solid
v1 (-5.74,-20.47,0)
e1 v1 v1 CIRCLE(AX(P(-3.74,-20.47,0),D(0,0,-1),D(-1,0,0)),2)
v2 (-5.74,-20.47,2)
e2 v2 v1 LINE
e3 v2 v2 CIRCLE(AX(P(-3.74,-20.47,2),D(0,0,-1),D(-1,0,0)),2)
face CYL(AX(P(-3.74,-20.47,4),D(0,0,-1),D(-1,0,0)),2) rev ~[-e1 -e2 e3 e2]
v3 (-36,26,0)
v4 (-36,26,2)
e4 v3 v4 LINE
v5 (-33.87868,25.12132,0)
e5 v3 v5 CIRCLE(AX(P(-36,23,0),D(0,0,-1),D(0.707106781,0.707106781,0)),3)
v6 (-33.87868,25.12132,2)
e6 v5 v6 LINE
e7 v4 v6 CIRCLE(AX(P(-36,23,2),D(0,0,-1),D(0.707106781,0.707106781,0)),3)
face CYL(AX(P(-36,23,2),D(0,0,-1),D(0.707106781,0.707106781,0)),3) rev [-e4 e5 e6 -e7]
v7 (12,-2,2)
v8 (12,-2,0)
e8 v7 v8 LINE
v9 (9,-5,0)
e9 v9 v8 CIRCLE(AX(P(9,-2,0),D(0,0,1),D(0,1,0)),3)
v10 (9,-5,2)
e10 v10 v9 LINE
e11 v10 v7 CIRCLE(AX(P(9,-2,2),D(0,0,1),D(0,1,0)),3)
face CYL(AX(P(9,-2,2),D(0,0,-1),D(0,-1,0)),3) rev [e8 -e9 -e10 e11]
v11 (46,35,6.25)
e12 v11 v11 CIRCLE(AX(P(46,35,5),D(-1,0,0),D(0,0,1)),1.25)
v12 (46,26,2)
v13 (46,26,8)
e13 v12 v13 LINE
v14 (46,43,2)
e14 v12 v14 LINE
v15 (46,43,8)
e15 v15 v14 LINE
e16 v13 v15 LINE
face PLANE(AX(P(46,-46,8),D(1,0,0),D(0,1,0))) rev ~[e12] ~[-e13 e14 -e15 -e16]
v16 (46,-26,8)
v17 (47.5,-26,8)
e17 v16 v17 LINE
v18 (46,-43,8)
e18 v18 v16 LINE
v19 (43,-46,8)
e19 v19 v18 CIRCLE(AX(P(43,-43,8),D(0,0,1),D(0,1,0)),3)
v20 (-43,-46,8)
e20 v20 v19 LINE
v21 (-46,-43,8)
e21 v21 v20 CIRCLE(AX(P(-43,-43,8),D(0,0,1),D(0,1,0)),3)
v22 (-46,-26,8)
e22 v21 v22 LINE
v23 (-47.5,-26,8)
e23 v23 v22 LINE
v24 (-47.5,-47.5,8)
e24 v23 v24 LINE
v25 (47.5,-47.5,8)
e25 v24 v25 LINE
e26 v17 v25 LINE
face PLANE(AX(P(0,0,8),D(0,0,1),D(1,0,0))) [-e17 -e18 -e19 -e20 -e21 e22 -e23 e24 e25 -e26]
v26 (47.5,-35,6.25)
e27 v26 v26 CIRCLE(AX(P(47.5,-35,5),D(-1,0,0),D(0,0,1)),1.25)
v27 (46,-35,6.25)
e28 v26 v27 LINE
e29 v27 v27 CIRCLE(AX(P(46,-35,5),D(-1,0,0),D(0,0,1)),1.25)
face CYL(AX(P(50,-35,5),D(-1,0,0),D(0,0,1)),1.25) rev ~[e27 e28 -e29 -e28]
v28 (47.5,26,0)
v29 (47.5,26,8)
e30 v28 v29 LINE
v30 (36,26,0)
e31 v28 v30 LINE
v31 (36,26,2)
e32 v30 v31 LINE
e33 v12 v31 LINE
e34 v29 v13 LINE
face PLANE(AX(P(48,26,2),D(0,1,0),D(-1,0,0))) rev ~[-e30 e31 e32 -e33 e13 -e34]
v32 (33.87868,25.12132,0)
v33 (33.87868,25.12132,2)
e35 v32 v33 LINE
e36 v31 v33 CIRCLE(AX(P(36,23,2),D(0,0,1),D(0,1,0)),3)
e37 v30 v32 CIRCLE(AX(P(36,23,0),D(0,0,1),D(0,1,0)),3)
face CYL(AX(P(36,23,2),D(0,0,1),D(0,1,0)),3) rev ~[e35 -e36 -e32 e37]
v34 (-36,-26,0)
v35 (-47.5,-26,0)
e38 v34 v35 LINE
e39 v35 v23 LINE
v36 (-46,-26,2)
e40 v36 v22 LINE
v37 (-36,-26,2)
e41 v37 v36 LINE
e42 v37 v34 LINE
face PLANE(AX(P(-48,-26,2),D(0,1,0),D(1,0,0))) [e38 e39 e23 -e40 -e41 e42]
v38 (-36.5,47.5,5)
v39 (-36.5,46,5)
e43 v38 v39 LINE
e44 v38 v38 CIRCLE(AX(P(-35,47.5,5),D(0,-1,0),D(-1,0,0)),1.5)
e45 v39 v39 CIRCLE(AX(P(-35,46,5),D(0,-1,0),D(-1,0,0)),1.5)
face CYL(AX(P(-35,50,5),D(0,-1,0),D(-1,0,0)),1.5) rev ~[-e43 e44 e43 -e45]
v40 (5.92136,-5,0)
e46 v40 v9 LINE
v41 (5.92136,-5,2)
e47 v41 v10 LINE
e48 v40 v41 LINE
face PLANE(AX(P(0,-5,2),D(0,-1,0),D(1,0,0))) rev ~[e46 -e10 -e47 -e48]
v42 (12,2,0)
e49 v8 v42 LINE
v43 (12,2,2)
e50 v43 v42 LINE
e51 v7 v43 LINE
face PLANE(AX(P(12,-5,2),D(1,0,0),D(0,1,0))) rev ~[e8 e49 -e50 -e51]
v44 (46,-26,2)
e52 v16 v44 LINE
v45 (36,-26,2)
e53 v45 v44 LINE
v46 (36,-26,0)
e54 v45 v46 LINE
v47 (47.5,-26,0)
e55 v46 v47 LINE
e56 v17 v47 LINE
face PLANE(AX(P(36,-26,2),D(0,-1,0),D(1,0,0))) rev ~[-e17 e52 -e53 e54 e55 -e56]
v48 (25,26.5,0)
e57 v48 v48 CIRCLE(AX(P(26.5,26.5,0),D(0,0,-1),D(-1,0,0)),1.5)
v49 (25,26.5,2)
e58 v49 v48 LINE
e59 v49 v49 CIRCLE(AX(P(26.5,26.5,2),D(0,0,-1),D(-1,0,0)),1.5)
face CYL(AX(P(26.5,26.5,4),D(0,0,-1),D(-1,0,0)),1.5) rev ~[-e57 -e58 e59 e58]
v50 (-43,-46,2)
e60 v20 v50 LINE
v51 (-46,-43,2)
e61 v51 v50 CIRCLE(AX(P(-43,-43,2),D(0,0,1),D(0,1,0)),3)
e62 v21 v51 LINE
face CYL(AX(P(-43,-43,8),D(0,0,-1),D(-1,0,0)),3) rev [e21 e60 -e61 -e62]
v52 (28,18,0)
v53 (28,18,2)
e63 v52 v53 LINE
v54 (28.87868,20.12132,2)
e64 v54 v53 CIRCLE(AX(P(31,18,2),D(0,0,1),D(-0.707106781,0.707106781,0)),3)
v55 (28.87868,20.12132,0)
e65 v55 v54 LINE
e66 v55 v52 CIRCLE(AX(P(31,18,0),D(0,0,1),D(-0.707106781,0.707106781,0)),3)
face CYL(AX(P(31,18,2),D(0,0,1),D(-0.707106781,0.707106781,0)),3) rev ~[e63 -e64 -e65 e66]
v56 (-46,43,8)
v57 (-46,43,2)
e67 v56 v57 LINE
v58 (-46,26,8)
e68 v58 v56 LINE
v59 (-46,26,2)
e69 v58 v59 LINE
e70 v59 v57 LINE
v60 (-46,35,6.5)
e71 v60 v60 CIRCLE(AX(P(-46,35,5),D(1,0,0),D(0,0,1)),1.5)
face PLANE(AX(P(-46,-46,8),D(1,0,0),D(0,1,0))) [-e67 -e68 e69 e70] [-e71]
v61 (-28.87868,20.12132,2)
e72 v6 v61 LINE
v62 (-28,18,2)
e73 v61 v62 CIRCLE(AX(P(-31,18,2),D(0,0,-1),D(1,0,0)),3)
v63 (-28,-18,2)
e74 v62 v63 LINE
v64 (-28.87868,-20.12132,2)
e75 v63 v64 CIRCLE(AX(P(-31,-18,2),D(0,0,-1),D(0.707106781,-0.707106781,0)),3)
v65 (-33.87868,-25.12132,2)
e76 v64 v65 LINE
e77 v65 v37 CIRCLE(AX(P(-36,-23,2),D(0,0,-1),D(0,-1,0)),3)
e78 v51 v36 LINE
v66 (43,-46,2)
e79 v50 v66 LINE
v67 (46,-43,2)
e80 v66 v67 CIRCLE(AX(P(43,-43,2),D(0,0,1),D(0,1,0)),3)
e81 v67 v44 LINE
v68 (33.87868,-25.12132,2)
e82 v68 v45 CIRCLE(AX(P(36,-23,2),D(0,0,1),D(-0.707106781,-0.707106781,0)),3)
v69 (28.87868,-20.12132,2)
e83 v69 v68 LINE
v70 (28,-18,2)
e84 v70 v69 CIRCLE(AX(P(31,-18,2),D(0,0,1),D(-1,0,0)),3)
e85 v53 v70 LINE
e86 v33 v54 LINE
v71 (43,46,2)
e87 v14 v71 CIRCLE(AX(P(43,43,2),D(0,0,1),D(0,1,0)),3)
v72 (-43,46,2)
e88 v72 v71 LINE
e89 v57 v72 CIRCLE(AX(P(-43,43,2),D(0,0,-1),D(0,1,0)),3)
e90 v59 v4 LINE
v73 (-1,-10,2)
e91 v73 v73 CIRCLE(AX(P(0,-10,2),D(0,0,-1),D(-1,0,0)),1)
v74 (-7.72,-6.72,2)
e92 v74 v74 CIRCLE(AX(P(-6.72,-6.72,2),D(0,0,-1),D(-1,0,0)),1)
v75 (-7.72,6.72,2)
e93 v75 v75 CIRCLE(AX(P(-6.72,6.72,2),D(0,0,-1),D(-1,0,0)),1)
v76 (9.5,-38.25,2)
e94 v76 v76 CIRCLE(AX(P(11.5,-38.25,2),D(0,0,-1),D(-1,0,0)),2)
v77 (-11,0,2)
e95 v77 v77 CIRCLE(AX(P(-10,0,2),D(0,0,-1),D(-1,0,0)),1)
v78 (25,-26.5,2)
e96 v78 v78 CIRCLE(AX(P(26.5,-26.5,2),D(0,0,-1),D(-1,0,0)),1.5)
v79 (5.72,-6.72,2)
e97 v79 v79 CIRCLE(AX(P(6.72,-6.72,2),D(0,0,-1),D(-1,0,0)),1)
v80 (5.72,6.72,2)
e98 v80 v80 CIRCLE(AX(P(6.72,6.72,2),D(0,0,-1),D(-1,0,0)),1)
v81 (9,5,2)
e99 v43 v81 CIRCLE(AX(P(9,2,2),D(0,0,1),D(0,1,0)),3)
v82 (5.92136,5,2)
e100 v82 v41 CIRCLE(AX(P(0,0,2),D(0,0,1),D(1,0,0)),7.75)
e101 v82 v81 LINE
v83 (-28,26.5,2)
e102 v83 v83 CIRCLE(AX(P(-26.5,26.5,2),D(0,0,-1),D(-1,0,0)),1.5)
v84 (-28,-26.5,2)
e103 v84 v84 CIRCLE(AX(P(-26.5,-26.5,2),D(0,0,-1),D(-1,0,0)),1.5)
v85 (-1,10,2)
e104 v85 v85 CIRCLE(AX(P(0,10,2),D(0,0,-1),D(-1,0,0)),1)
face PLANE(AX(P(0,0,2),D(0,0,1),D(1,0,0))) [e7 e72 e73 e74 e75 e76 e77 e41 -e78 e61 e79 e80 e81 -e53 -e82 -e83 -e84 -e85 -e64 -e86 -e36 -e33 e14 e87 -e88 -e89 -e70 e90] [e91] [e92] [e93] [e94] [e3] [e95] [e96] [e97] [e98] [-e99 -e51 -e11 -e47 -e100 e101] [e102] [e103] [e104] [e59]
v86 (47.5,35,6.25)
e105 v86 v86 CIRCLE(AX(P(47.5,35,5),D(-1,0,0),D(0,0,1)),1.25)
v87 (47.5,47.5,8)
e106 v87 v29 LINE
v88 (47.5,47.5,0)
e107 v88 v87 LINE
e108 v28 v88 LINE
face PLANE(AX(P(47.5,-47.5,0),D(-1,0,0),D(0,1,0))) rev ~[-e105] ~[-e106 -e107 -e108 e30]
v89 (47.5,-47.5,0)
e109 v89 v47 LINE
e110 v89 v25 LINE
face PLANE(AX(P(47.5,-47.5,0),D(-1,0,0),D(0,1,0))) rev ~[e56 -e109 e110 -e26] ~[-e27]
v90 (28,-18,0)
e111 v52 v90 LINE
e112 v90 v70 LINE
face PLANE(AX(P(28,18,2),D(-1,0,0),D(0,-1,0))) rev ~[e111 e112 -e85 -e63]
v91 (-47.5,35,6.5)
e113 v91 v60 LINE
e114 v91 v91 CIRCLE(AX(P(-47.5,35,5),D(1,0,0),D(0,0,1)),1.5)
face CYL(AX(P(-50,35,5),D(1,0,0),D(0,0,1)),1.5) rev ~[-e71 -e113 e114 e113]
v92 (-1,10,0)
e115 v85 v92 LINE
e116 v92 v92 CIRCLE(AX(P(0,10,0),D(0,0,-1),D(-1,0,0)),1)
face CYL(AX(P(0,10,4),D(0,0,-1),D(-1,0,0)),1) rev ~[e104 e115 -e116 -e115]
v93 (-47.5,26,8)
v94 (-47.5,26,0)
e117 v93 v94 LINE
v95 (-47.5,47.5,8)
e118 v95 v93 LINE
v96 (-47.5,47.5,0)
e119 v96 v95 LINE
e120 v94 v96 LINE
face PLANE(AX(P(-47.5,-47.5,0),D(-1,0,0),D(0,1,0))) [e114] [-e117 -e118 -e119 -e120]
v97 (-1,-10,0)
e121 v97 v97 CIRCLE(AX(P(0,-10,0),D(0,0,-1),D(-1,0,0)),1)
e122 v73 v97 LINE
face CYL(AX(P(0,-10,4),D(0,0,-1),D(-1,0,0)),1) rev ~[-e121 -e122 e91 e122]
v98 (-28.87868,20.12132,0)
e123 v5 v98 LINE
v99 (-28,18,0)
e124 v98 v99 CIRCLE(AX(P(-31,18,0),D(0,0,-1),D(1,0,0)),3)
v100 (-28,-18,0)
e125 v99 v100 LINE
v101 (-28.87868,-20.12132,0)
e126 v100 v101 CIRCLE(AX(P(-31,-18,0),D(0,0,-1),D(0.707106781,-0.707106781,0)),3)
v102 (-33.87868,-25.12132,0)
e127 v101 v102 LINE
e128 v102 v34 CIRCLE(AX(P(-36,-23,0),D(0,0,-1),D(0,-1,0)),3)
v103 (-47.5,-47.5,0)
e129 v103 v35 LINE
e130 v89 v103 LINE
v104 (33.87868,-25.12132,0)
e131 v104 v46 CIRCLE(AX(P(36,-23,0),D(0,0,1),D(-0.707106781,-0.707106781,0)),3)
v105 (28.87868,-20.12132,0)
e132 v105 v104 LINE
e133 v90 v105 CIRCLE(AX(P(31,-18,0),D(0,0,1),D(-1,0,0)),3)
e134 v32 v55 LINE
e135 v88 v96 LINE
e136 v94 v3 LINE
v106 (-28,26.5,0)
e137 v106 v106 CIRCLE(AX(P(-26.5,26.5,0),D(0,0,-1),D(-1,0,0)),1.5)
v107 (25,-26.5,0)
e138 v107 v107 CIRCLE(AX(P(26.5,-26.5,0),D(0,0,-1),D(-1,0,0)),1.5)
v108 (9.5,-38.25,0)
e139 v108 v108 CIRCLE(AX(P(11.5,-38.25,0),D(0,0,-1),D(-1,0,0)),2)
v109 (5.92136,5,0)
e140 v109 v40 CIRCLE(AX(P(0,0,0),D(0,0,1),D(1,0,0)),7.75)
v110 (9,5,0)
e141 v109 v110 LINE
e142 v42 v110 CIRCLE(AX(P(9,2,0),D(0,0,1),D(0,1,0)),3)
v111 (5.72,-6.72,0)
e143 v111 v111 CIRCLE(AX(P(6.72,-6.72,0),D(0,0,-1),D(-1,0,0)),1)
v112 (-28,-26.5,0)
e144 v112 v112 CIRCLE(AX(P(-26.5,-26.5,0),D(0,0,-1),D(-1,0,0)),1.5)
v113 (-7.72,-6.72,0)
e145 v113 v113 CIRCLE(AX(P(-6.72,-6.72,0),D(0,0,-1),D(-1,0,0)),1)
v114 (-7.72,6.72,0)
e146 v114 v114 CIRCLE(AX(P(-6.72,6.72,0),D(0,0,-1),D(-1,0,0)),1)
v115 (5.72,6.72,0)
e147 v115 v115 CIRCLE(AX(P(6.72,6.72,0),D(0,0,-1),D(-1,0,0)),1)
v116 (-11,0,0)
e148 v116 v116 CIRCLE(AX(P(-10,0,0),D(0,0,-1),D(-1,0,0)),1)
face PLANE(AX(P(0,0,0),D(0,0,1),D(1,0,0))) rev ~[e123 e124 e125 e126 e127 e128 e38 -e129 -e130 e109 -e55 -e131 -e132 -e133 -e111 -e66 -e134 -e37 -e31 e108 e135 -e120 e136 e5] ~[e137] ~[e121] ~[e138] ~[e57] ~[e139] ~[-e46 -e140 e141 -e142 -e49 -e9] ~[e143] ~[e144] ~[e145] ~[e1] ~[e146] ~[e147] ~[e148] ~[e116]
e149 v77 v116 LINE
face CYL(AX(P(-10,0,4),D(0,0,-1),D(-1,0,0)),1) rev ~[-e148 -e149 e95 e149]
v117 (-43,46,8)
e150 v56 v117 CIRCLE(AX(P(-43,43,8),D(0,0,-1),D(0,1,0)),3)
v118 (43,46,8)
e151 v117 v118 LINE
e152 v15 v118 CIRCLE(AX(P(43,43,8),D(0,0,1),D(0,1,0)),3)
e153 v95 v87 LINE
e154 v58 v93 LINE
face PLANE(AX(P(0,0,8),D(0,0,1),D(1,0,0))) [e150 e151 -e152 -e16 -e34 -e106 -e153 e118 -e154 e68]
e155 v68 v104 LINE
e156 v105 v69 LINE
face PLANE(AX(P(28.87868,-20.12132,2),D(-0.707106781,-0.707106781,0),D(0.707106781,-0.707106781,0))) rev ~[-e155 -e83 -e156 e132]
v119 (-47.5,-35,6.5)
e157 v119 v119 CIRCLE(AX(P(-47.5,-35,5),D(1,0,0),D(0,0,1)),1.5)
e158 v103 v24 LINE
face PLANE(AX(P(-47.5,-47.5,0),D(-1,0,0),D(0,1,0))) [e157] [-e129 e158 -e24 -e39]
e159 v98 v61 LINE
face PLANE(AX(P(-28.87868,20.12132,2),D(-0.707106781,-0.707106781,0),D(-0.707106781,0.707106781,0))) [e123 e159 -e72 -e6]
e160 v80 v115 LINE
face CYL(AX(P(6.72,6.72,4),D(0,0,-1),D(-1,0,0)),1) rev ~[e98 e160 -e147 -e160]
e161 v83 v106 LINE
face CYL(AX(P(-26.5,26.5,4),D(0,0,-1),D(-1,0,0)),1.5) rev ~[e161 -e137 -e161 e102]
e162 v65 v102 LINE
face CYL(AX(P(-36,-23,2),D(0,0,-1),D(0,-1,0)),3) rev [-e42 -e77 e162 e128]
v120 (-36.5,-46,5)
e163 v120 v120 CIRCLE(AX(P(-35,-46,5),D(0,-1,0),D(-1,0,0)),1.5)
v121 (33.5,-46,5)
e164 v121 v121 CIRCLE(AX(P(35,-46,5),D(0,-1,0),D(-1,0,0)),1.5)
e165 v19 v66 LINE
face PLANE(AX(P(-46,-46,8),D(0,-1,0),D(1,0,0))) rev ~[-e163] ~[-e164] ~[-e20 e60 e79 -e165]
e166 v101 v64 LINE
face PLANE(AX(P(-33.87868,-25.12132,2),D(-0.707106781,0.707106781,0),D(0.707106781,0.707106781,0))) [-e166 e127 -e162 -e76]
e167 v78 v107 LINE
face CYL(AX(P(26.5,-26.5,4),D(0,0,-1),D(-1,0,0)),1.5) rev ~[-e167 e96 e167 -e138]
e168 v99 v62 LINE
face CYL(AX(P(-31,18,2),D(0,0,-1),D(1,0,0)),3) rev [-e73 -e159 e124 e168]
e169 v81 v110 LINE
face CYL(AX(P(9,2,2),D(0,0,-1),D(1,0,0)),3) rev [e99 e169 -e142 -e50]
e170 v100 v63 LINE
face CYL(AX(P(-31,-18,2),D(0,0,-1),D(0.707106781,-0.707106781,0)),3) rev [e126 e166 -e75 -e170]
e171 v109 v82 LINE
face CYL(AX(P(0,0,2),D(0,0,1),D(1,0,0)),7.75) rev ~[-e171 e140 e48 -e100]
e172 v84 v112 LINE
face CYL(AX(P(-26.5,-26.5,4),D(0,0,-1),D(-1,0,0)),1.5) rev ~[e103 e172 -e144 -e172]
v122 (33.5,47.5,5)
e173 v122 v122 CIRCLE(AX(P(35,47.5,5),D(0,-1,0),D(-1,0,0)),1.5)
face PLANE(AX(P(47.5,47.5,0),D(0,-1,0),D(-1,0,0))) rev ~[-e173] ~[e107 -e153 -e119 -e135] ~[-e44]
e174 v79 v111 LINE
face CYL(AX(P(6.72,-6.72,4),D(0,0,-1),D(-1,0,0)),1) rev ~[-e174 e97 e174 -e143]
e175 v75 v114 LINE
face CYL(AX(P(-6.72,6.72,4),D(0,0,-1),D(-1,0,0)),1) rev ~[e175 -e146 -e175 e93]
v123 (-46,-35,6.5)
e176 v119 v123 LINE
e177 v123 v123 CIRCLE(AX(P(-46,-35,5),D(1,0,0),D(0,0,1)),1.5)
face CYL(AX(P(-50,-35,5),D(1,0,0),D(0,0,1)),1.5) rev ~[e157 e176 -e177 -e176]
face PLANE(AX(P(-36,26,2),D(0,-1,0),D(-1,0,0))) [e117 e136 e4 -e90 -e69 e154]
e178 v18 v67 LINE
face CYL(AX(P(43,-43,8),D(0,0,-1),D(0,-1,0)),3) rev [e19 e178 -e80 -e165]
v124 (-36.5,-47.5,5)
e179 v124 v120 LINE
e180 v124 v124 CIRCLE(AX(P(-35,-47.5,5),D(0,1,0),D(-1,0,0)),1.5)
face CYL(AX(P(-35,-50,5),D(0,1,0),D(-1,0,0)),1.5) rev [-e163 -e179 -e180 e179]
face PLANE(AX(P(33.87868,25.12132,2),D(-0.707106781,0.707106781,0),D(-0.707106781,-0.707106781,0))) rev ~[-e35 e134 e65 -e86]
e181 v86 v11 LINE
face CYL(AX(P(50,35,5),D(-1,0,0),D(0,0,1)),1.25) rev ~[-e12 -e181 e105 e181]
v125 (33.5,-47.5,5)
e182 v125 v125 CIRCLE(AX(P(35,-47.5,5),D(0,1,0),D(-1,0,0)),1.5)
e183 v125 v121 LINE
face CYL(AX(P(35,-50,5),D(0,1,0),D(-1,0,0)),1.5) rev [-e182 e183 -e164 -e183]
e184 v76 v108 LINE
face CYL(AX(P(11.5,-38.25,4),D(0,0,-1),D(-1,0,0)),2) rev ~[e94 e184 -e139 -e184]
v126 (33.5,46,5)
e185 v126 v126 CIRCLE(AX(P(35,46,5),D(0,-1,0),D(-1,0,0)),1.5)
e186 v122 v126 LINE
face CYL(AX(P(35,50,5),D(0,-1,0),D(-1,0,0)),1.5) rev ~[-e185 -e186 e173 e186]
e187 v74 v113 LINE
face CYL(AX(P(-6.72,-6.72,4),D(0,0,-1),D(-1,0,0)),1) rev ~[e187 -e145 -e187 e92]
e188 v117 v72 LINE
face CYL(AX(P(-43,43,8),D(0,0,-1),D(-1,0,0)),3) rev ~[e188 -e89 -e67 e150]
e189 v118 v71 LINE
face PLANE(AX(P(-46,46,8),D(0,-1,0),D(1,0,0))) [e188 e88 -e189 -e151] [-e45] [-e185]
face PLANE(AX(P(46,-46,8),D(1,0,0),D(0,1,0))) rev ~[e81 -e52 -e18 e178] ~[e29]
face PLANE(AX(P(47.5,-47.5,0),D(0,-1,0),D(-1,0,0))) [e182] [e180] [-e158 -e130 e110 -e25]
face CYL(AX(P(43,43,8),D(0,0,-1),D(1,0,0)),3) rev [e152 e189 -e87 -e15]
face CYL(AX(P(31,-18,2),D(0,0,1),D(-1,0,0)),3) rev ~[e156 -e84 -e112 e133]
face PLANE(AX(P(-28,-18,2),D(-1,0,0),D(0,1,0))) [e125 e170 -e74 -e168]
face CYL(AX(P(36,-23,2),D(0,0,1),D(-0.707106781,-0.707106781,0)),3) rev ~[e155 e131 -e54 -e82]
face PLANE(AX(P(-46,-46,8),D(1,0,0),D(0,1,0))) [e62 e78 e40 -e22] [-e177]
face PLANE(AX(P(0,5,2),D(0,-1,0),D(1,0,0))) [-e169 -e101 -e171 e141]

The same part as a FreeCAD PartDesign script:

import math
import FreeCAD as App
import Part
import Sketcher
Q = App.Units.Quantity


def edges_at(feature, points):
    """Names of the edges that pass closest to the given points."""
    edges = feature.Shape.Edges
    near = lambda p: min(range(len(edges)), key=lambda i: edges[i].distToShape(Part.Vertex(*p))[0])
    return sorted({f"Edge{near(p) + 1}" for p in points})

doc = App.newDocument("Part")
params = doc.addObject("Spreadsheet::Sheet", "Params")
for row, (alias, value) in enumerate([
    ("sketch1_width", "96 mm"),
    ("pad1_length", "8 mm"),
    ("sketch2_width", "92 mm"),
    ("pocket1_length", "6 mm"),
    ("sketch3_radius", "3 mm"),
    ("sketch3_width", "12 mm"),
    ("sketch3_height", "36 mm"),
    ("sketch3_height2", "52 mm"),
    ("pocket2_length", "12 mm"),
    ("sketch4_diameter", "15.5 mm"),
    ("pocket3_length", "6 mm"),
    ("fillet_radius", "3 mm"),
    ("sketch5_width", "12 mm"),
    ("sketch5_height", "10 mm"),
    ("pocket4_length", "2 mm"),
    ("fillet2_radius", "3 mm"),
    ("sketch6_diameter", "2.5 mm"),
    ("hole_diameter", "2.5 mm"),
    ("hole_depth", "2 mm"),
    ("sketch7_diameter", "3 mm"),
    ("hole2_diameter", "3 mm"),
    ("hole2_depth", "2 mm"),
    ("sketch8_diameter", "3 mm"),
    ("hole3_diameter", "3 mm"),
    ("hole3_depth", "2 mm"),
    ("sketch9_diameter", "2 mm"),
    ("hole4_diameter", "2 mm"),
    ("hole4_depth", "2 mm"),
    ("sketch10_diameter", "4 mm"),
    ("hole5_diameter", "4 mm"),
    ("hole5_depth", "2 mm"),
    ("sketch11_diameter", "3 mm"),
    ("hole6_diameter", "3 mm"),
    ("hole6_depth", "2 mm"),
    ("sketch12_width", "95 mm"),
    ("sketch12_width2", "125.2 mm"),
    ("pocket5_length", "10 mm"),
], start=1):
    params.set(f"A{row}", alias)
    params.set(f"B{row}", "=" + value)
    params.setAlias(f"B{row}", alias)

body = doc.addObject("PartDesign::Body", "Body")

sketch1 = body.newObject("Sketcher::SketchObject", "Sketch")
sketch1.AttachmentSupport = (doc.getObject("XY_Plane"), [""])
sketch1.MapMode = "FlatFace"
sketch1.addGeometry([
    Part.LineSegment(App.Vector(-48, 48, 0), App.Vector(-48, -48, 0)),
    Part.LineSegment(App.Vector(-48, -48, 0), App.Vector(48, -48, 0)),
    Part.LineSegment(App.Vector(48, -48, 0), App.Vector(48, 48, 0)),
    Part.LineSegment(App.Vector(48, 48, 0), App.Vector(-48, 48, 0)),
], False)
sketch1.addConstraint([
    Sketcher.Constraint("Coincident", 0, 2, 1, 1),
    Sketcher.Constraint("Coincident", 1, 2, 2, 1),
    Sketcher.Constraint("Coincident", 2, 2, 3, 1),
    Sketcher.Constraint("Coincident", 3, 2, 0, 1),
    Sketcher.Constraint("Vertical", 0),
    Sketcher.Constraint("Horizontal", 1),
    Sketcher.Constraint("Vertical", 2),
    Sketcher.Constraint("Horizontal", 3),
    Sketcher.Constraint("Symmetric", 0, 2, 2, 2, -1, 1),
    Sketcher.Constraint("Equal", 3, 0),
    Sketcher.Constraint("DistanceX", 1, 1, 1, 2, Q("96 mm")),
])
sketch1.setExpression("Constraints[10]", "Params.sketch1_width")
pad1 = body.newObject("PartDesign::Pad", "Pad")
pad1.Profile = sketch1
pad1.setExpression("Length", "Params.pad1_length")

sketch2 = body.newObject("Sketcher::SketchObject", "Sketch001")
sketch2.AttachmentSupport = (doc.getObject("XY_Plane"), [""])
sketch2.MapMode = "FlatFace"
sketch2.AttachmentOffset = App.Placement(App.Vector(0, 0, 8), App.Rotation())
sketch2.addGeometry([
    Part.LineSegment(App.Vector(-46, 46, 0), App.Vector(-46, -46, 0)),
    Part.LineSegment(App.Vector(-46, -46, 0), App.Vector(46, -46, 0)),
    Part.LineSegment(App.Vector(46, -46, 0), App.Vector(46, 46, 0)),
    Part.LineSegment(App.Vector(46, 46, 0), App.Vector(-46, 46, 0)),
], False)
sketch2.addConstraint([
    Sketcher.Constraint("Coincident", 0, 2, 1, 1),
    Sketcher.Constraint("Coincident", 1, 2, 2, 1),
    Sketcher.Constraint("Coincident", 2, 2, 3, 1),
    Sketcher.Constraint("Coincident", 3, 2, 0, 1),
    Sketcher.Constraint("Vertical", 0),
    Sketcher.Constraint("Horizontal", 1),
    Sketcher.Constraint("Vertical", 2),
    Sketcher.Constraint("Horizontal", 3),
    Sketcher.Constraint("Symmetric", 0, 2, 2, 2, -1, 1),
    Sketcher.Constraint("Equal", 3, 0),
    Sketcher.Constraint("DistanceX", 1, 1, 1, 2, Q("92 mm")),
])
sketch2.setExpression("Constraints[10]", "Params.sketch2_width")
pocket1 = body.newObject("PartDesign::Pocket", "Pocket")
pocket1.Profile = sketch2
pocket1.setExpression("Length", "Params.pocket1_length")

sketch3 = body.newObject("Sketcher::SketchObject", "Sketch002")
sketch3.AttachmentSupport = (doc.getObject("XY_Plane"), [""])
sketch3.MapMode = "FlatFace"
sketch3.AttachmentOffset = App.Placement(App.Vector(0, 0, 2), App.Rotation())
sketch3.addGeometry([
    Part.LineSegment(App.Vector(-33.9, -25.1, 0), App.Vector(-28.9, -20.1, 0)),
    Part.ArcOfCircle(Part.Circle(App.Vector(-31, -18, 0), App.Vector(0, 0, 1), 3), math.radians(-45), math.radians(0)),
    Part.LineSegment(App.Vector(-28, -18, 0), App.Vector(-28, 18, 0)),
    Part.ArcOfCircle(Part.Circle(App.Vector(-31, 18, 0), App.Vector(0, 0, 1), 3), math.radians(0), math.radians(45)),
    Part.LineSegment(App.Vector(-28.9, 20.1, 0), App.Vector(-33.9, 25.1, 0)),
    Part.ArcOfCircle(Part.Circle(App.Vector(-36, 23, 0), App.Vector(0, 0, 1), 3), math.radians(45), math.radians(90)),
    Part.LineSegment(App.Vector(-36, 26, 0), App.Vector(-48, 26, 0)),
    Part.LineSegment(App.Vector(-48, 26, 0), App.Vector(-48, -26, 0)),
    Part.LineSegment(App.Vector(-48, -26, 0), App.Vector(-36, -26, 0)),
    Part.ArcOfCircle(Part.Circle(App.Vector(-36, -23, 0), App.Vector(0, 0, 1), 3), math.radians(-90), math.radians(-45)),
    Part.LineSegment(App.Vector(48, -26, 0), App.Vector(48, 26, 0)),
    Part.LineSegment(App.Vector(48, 26, 0), App.Vector(36, 26, 0)),
    Part.ArcOfCircle(Part.Circle(App.Vector(36, 23, 0), App.Vector(0, 0, 1), 3), math.radians(90), math.radians(135)),
    Part.LineSegment(App.Vector(33.9, 25.1, 0), App.Vector(28.9, 20.1, 0)),
    Part.ArcOfCircle(Part.Circle(App.Vector(31, 18, 0), App.Vector(0, 0, 1), 3), math.radians(135), math.radians(180)),
    Part.LineSegment(App.Vector(28, 18, 0), App.Vector(28, -18, 0)),
    Part.ArcOfCircle(Part.Circle(App.Vector(31, -18, 0), App.Vector(0, 0, 1), 3), math.radians(180), math.radians(225)),
    Part.LineSegment(App.Vector(28.9, -20.1, 0), App.Vector(33.9, -25.1, 0)),
    Part.ArcOfCircle(Part.Circle(App.Vector(36, -23, 0), App.Vector(0, 0, 1), 3), math.radians(-135), math.radians(-90)),
    Part.LineSegment(App.Vector(36, -26, 0), App.Vector(48, -26, 0)),
], False)
sketch3.addConstraint([
    Sketcher.Constraint("Tangent", 0, 2, 1, 1),
    Sketcher.Constraint("Tangent", 1, 2, 2, 1),
    Sketcher.Constraint("Tangent", 2, 2, 3, 1),
    Sketcher.Constraint("Tangent", 3, 2, 4, 1),
    Sketcher.Constraint("Tangent", 4, 2, 5, 1),
    Sketcher.Constraint("Tangent", 5, 2, 6, 1),
    Sketcher.Constraint("Coincident", 6, 2, 7, 1),
    Sketcher.Constraint("Coincident", 7, 2, 8, 1),
    Sketcher.Constraint("Tangent", 8, 2, 9, 1),
    Sketcher.Constraint("Tangent", 9, 2, 0, 1),
    Sketcher.Constraint("Coincident", 10, 2, 11, 1),
    Sketcher.Constraint("Tangent", 11, 2, 12, 1),
    Sketcher.Constraint("Tangent", 12, 2, 13, 1),
    Sketcher.Constraint("Tangent", 13, 2, 14, 1),
    Sketcher.Constraint("Tangent", 14, 2, 15, 1),
    Sketcher.Constraint("Tangent", 15, 2, 16, 1),
    Sketcher.Constraint("Tangent", 16, 2, 17, 1),
    Sketcher.Constraint("Tangent", 17, 2, 18, 1),
    Sketcher.Constraint("Tangent", 18, 2, 19, 1),
    Sketcher.Constraint("Coincident", 19, 2, 10, 1),
    Sketcher.Constraint("Vertical", 2),
    Sketcher.Constraint("Horizontal", 6),
    Sketcher.Constraint("Vertical", 7),
    Sketcher.Constraint("Horizontal", 8),
    Sketcher.Constraint("Vertical", 10),
    Sketcher.Constraint("Horizontal", 11),
    Sketcher.Constraint("Vertical", 15),
    Sketcher.Constraint("Horizontal", 19),
    Sketcher.Constraint("Equal", 1, 3),
    Sketcher.Constraint("Equal", 3, 5),
    Sketcher.Constraint("Equal", 5, 9),
    Sketcher.Constraint("Equal", 9, 12),
    Sketcher.Constraint("Equal", 12, 14),
    Sketcher.Constraint("Equal", 14, 16),
    Sketcher.Constraint("Equal", 16, 18),
    Sketcher.Constraint("Symmetric", 9, 3, 12, 3, -1, 1),
    Sketcher.Constraint("Symmetric", 1, 3, 14, 3, -1, 1),
    Sketcher.Constraint("Symmetric", 5, 3, 18, 3, -1, 1),
    Sketcher.Constraint("Symmetric", 5, 3, 12, 3, -2),
    Sketcher.Constraint("Perpendicular", 0, 4),
    Sketcher.Constraint("Perpendicular", 13, 17),
    Sketcher.Constraint("Horizontal", 3, 3, 14, 3),
    Sketcher.Constraint("Equal", 8, 11),
    Sketcher.Constraint("Radius", 1, Q("3 mm")),
    Sketcher.Constraint("DistanceX", 6, 2, 6, 1, Q("12 mm")),
    Sketcher.Constraint("DistanceY", 2, 1, 2, 2, Q("36 mm")),
    Sketcher.Constraint("DistanceY", 7, 2, 7, 1, Q("52 mm")),
    Sketcher.Constraint("DistanceX", 1, 3, -1, 1, Q("31 mm")),
])
sketch3.setExpression("Constraints[43]", "Params.sketch3_radius")
sketch3.setExpression("Constraints[44]", "Params.sketch3_width")
sketch3.setExpression("Constraints[45]", "Params.sketch3_height")
sketch3.setExpression("Constraints[46]", "Params.sketch3_height2")
pocket2 = body.newObject("PartDesign::Pocket", "Pocket001")
pocket2.Profile = sketch3
pocket2.setExpression("Length", "Params.pocket2_length")
pocket2.Midplane = True

sketch4 = body.newObject("Sketcher::SketchObject", "Sketch003")
sketch4.AttachmentSupport = (doc.getObject("XY_Plane"), [""])
sketch4.MapMode = "FlatFace"
sketch4.AttachmentOffset = App.Placement(App.Vector(0, 0, 2), App.Rotation())
sketch4.addGeometry(Part.Circle(App.Vector(0, 0, 0), App.Vector(0, 0, 1), 8), False)
sketch4.addConstraint([
    Sketcher.Constraint("Coincident", 0, 3, -1, 1),
    Sketcher.Constraint("Diameter", 0, Q("15.5 mm")),
])
sketch4.setExpression("Constraints[1]", "Params.sketch4_diameter")
pocket3 = body.newObject("PartDesign::Pocket", "Pocket002")
pocket3.Profile = sketch4
pocket3.setExpression("Length", "Params.pocket3_length")
doc.recompute()

fillet = body.newObject("PartDesign::Fillet", "Fillet")
fillet.Base = (pocket3, edges_at(pocket3, [
    (-46, -46, 5),
    (-46, 46, 5),
    (46, 46, 5),
    (46, -46, 5),
]))
fillet.setExpression("Radius", "Params.fillet_radius")

sketch5 = body.newObject("Sketcher::SketchObject", "Sketch004")
sketch5.AttachmentSupport = (doc.getObject("XY_Plane"), [""])
sketch5.MapMode = "FlatFace"
sketch5.AttachmentOffset = App.Placement(App.Vector(0, 0, 2), App.Rotation())
sketch5.addGeometry([
    Part.LineSegment(App.Vector(0, 5, 0), App.Vector(0, -5, 0)),
    Part.LineSegment(App.Vector(0, -5, 0), App.Vector(12, -5, 0)),
    Part.LineSegment(App.Vector(12, -5, 0), App.Vector(12, 5, 0)),
    Part.LineSegment(App.Vector(12, 5, 0), App.Vector(0, 5, 0)),
], False)
sketch5.addConstraint([
    Sketcher.Constraint("Coincident", 0, 2, 1, 1),
    Sketcher.Constraint("Coincident", 1, 2, 2, 1),
    Sketcher.Constraint("Coincident", 2, 2, 3, 1),
    Sketcher.Constraint("Coincident", 3, 2, 0, 1),
    Sketcher.Constraint("Vertical", 0),
    Sketcher.Constraint("Horizontal", 1),
    Sketcher.Constraint("Vertical", 2),
    Sketcher.Constraint("Horizontal", 3),
    Sketcher.Constraint("Symmetric", 0, 2, 3, 2, -1, 1),
    Sketcher.Constraint("DistanceX", 1, 1, 1, 2, Q("12 mm")),
    Sketcher.Constraint("DistanceY", 0, 2, 0, 1, Q("10 mm")),
])
sketch5.setExpression("Constraints[9]", "Params.sketch5_width")
sketch5.setExpression("Constraints[10]", "Params.sketch5_height")
pocket4 = body.newObject("PartDesign::Pocket", "Pocket003")
pocket4.Profile = sketch5
pocket4.setExpression("Length", "Params.pocket4_length")
doc.recompute()

fillet2 = body.newObject("PartDesign::Fillet", "Fillet001")
fillet2.Base = (pocket4, edges_at(pocket4, [(12, -5, 1), (12, 5, 1)]))
fillet2.setExpression("Radius", "Params.fillet2_radius")

sketch6 = body.newObject("Sketcher::SketchObject", "Sketch005")
sketch6.AttachmentSupport = (doc.getObject("YZ_Plane"), [""])
sketch6.MapMode = "FlatFace"
sketch6.AttachmentOffset = App.Placement(App.Vector(0, 0, 48), App.Rotation())
sketch6.addGeometry([
    Part.Circle(App.Vector(-35, 5, 0), App.Vector(0, 0, 1), 1.2),
    Part.Circle(App.Vector(35, 5, 0), App.Vector(0, 0, 1), 1.2),
], False)
sketch6.addConstraint([
    Sketcher.Constraint("Equal", 0, 1),
    Sketcher.Constraint("Symmetric", 0, 3, 1, 3, -2),
    Sketcher.Constraint("Diameter", 0, Q("2.5 mm")),
    Sketcher.Constraint("DistanceX", 0, 3, -1, 1, Q("35 mm")),
    Sketcher.Constraint("DistanceY", -1, 1, 0, 3, Q("5 mm")),
])
sketch6.setExpression("Constraints[2]", "Params.sketch6_diameter")
doc.recompute()
hole = body.newObject("PartDesign::Hole", "Hole")
hole.Profile = sketch6
hole.ThreadType = "None"
hole.setExpression("Diameter", "Params.hole_diameter")
hole.DepthType = "Dimension"
hole.setExpression("Depth", "Params.hole_depth")
hole.DrillPoint = "Flat"

sketch7 = body.newObject("Sketcher::SketchObject", "Sketch006")
sketch7.AttachmentSupport = (doc.getObject("XZ_Plane"), [""])
sketch7.MapMode = "FlatFace"
sketch7.AttachmentOffset = App.Placement(App.Vector(0, 0, -48), App.Rotation())
sketch7.addGeometry([
    Part.Circle(App.Vector(35, 5, 0), App.Vector(0, 0, 1), 1.5),
    Part.Circle(App.Vector(-35, 5, 0), App.Vector(0, 0, 1), 1.5),
], False)
sketch7.addConstraint([
    Sketcher.Constraint("Equal", 0, 1),
    Sketcher.Constraint("Symmetric", 0, 3, 1, 3, -2),
    Sketcher.Constraint("Diameter", 0, Q("3 mm")),
    Sketcher.Constraint("DistanceX", -1, 1, 0, 3, Q("35 mm")),
    Sketcher.Constraint("DistanceY", -1, 1, 0, 3, Q("5 mm")),
])
sketch7.setExpression("Constraints[2]", "Params.sketch7_diameter")
doc.recompute()
hole2 = body.newObject("PartDesign::Hole", "Hole001")
hole2.Profile = sketch7
hole2.ThreadType = "None"
hole2.setExpression("Diameter", "Params.hole2_diameter")
hole2.DepthType = "Dimension"
hole2.setExpression("Depth", "Params.hole2_depth")
hole2.DrillPoint = "Flat"
hole2.Reversed = True
doc.recompute()

mirrored = body.newObject("PartDesign::Mirrored", "Mirrored")
mirrored.Originals = [hole2]
mirrored.MirrorPlane = (doc.getObject("XZ_Plane"), [""])
body.Tip = mirrored

sketch8 = body.newObject("Sketcher::SketchObject", "Sketch007")
sketch8.AttachmentSupport = (doc.getObject("XY_Plane"), [""])
sketch8.MapMode = "FlatFace"
sketch8.AttachmentOffset = App.Placement(App.Vector(0, 0, 2), App.Rotation())
sketch8.addGeometry([
    Part.Circle(App.Vector(-26.5, -26.5, 0), App.Vector(0, 0, 1), 1.5),
    Part.Circle(App.Vector(26.5, -26.5, 0), App.Vector(0, 0, 1), 1.5),
    Part.Circle(App.Vector(26.5, 26.5, 0), App.Vector(0, 0, 1), 1.5),
    Part.Circle(App.Vector(-26.5, 26.5, 0), App.Vector(0, 0, 1), 1.5),
], False)
sketch8.addConstraint([
    Sketcher.Constraint("Equal", 0, 1),
    Sketcher.Constraint("Equal", 1, 2),
    Sketcher.Constraint("Equal", 2, 3),
    Sketcher.Constraint("Symmetric", 0, 3, 2, 3, -1, 1),
    Sketcher.Constraint("Symmetric", 1, 3, 3, 3, -1, 1),
    Sketcher.Constraint("Symmetric", 0, 3, 1, 3, -2),
    Sketcher.Constraint("Diameter", 0, Q("3 mm")),
    Sketcher.Constraint("DistanceX", 0, 3, 1, 3, Q("53 mm")),
    Sketcher.Constraint("DistanceY", 1, 3, 2, 3, Q("53 mm")),
])
sketch8.setExpression("Constraints[6]", "Params.sketch8_diameter")
doc.recompute()
hole3 = body.newObject("PartDesign::Hole", "Hole002")
hole3.Profile = sketch8
hole3.ThreadType = "None"
hole3.setExpression("Diameter", "Params.hole3_diameter")
hole3.DepthType = "Dimension"
hole3.setExpression("Depth", "Params.hole3_depth")
hole3.DrillPoint = "Flat"

sketch9 = body.newObject("Sketcher::SketchObject", "Sketch008")
sketch9.AttachmentSupport = (doc.getObject("XY_Plane"), [""])
sketch9.MapMode = "FlatFace"
sketch9.AttachmentOffset = App.Placement(App.Vector(0, 0, 2), App.Rotation())
sketch9.addGeometry([
    Part.Circle(App.Vector(6.7, -6.7, 0), App.Vector(0, 0, 1), 1),
    Part.Circle(App.Vector(0, -10, 0), App.Vector(0, 0, 1), 1),
    Part.Circle(App.Vector(-6.7, -6.7, 0), App.Vector(0, 0, 1), 1),
    Part.Circle(App.Vector(-10, 0, 0), App.Vector(0, 0, 1), 1),
    Part.Circle(App.Vector(-6.7, 6.7, 0), App.Vector(0, 0, 1), 1),
    Part.Circle(App.Vector(0, 10, 0), App.Vector(0, 0, 1), 1),
    Part.Circle(App.Vector(6.7, 6.7, 0), App.Vector(0, 0, 1), 1),
], False)
sketch9.addConstraint([
    Sketcher.Constraint("Equal", 0, 1),
    Sketcher.Constraint("Equal", 1, 2),
    Sketcher.Constraint("Equal", 2, 3),
    Sketcher.Constraint("Equal", 3, 4),
    Sketcher.Constraint("Equal", 4, 5),
    Sketcher.Constraint("Equal", 5, 6),
    Sketcher.Constraint("Symmetric", 0, 3, 4, 3, -1, 1),
    Sketcher.Constraint("Symmetric", 1, 3, 5, 3, -1, 1),
    Sketcher.Constraint("Symmetric", 2, 3, 6, 3, -1, 1),
    Sketcher.Constraint("Symmetric", 0, 3, 2, 3, -2),
    Sketcher.Constraint("PointOnObject", 1, 3, -2),
    Sketcher.Constraint("PointOnObject", 3, 3, -1),
    Sketcher.Constraint("Diameter", 0, Q("2 mm")),
    Sketcher.Constraint("DistanceY", 1, 3, -1, 1, Q("10 mm")),
    Sketcher.Constraint("DistanceX", 3, 3, -1, 1, Q("10 mm")),
    Sketcher.Constraint("DistanceX", -1, 1, 0, 3, Q("6.72 mm")),
    Sketcher.Constraint("DistanceY", 0, 3, -1, 1, Q("6.72 mm")),
])
sketch9.setExpression("Constraints[12]", "Params.sketch9_diameter")
doc.recompute()
hole4 = body.newObject("PartDesign::Hole", "Hole003")
hole4.Profile = sketch9
hole4.ThreadType = "None"
hole4.setExpression("Diameter", "Params.hole4_diameter")
hole4.DepthType = "Dimension"
hole4.setExpression("Depth", "Params.hole4_depth")
hole4.DrillPoint = "Flat"

sketch10 = body.newObject("Sketcher::SketchObject", "Sketch009")
sketch10.AttachmentSupport = (doc.getObject("XY_Plane"), [""])
sketch10.MapMode = "FlatFace"
sketch10.AttachmentOffset = App.Placement(App.Vector(0, 0, 2), App.Rotation())
sketch10.addGeometry([
    Part.Circle(App.Vector(-3.7, -20.5, 0), App.Vector(0, 0, 1), 2),
    Part.Circle(App.Vector(11.5, -38.2, 0), App.Vector(0, 0, 1), 2),
], False)
sketch10.addConstraint([
    Sketcher.Constraint("Equal", 0, 1),
    Sketcher.Constraint("Diameter", 0, Q("4 mm")),
    Sketcher.Constraint("DistanceX", -1, 1, 1, 3, Q("11.5 mm")),
    Sketcher.Constraint("DistanceX", 0, 3, -1, 1, Q("3.74 mm")),
    Sketcher.Constraint("DistanceY", 0, 3, -1, 1, Q("20.47 mm")),
    Sketcher.Constraint("DistanceY", 1, 3, -1, 1, Q("38.25 mm")),
])
sketch10.setExpression("Constraints[1]", "Params.sketch10_diameter")
doc.recompute()
hole5 = body.newObject("PartDesign::Hole", "Hole004")
hole5.Profile = sketch10
hole5.ThreadType = "None"
hole5.setExpression("Diameter", "Params.hole5_diameter")
hole5.DepthType = "Dimension"
hole5.setExpression("Depth", "Params.hole5_depth")
hole5.DrillPoint = "Flat"

sketch11 = body.newObject("Sketcher::SketchObject", "Sketch010")
sketch11.AttachmentSupport = (doc.getObject("YZ_Plane"), [""])
sketch11.MapMode = "FlatFace"
sketch11.AttachmentOffset = App.Placement(App.Vector(0, 0, -48), App.Rotation())
sketch11.addGeometry([
    Part.Circle(App.Vector(35, 5, 0), App.Vector(0, 0, 1), 1.5),
    Part.Circle(App.Vector(-35, 5, 0), App.Vector(0, 0, 1), 1.5),
], False)
sketch11.addConstraint([
    Sketcher.Constraint("Equal", 0, 1),
    Sketcher.Constraint("Symmetric", 0, 3, 1, 3, -2),
    Sketcher.Constraint("Diameter", 0, Q("3 mm")),
    Sketcher.Constraint("DistanceX", -1, 1, 0, 3, Q("35 mm")),
    Sketcher.Constraint("DistanceY", -1, 1, 0, 3, Q("5 mm")),
])
sketch11.setExpression("Constraints[2]", "Params.sketch11_diameter")
doc.recompute()
hole6 = body.newObject("PartDesign::Hole", "Hole005")
hole6.Profile = sketch11
hole6.ThreadType = "None"
hole6.setExpression("Diameter", "Params.hole6_diameter")
hole6.DepthType = "Dimension"
hole6.setExpression("Depth", "Params.hole6_depth")
hole6.DrillPoint = "Flat"
hole6.Reversed = True

sketch12 = body.newObject("Sketcher::SketchObject", "Sketch011")
sketch12.AttachmentSupport = (doc.getObject("XY_Plane"), [""])
sketch12.MapMode = "FlatFace"
sketch12.addGeometry([
    Part.LineSegment(App.Vector(63, 63, 0), App.Vector(63, -63, 0)),
    Part.LineSegment(App.Vector(63, -63, 0), App.Vector(-63, -63, 0)),
    Part.LineSegment(App.Vector(-63, -63, 0), App.Vector(-63, 63, 0)),
    Part.LineSegment(App.Vector(-63, 63, 0), App.Vector(63, 63, 0)),
    Part.LineSegment(App.Vector(-48, -48, 0), App.Vector(48, -48, 0)),
    Part.LineSegment(App.Vector(48, -48, 0), App.Vector(48, 48, 0)),
    Part.LineSegment(App.Vector(48, 48, 0), App.Vector(-48, 48, 0)),
    Part.LineSegment(App.Vector(-48, 48, 0), App.Vector(-48, -48, 0)),
], False)
sketch12.addConstraint([
    Sketcher.Constraint("Coincident", 0, 2, 1, 1),
    Sketcher.Constraint("Coincident", 1, 2, 2, 1),
    Sketcher.Constraint("Coincident", 2, 2, 3, 1),
    Sketcher.Constraint("Coincident", 3, 2, 0, 1),
    Sketcher.Constraint("Coincident", 4, 2, 5, 1),
    Sketcher.Constraint("Coincident", 5, 2, 6, 1),
    Sketcher.Constraint("Coincident", 6, 2, 7, 1),
    Sketcher.Constraint("Coincident", 7, 2, 4, 1),
    Sketcher.Constraint("Vertical", 0),
    Sketcher.Constraint("Horizontal", 1),
    Sketcher.Constraint("Vertical", 2),
    Sketcher.Constraint("Horizontal", 3),
    Sketcher.Constraint("Horizontal", 4),
    Sketcher.Constraint("Vertical", 5),
    Sketcher.Constraint("Horizontal", 6),
    Sketcher.Constraint("Vertical", 7),
    Sketcher.Constraint("Symmetric", 0, 2, 2, 2, -1, 1),
    Sketcher.Constraint("Symmetric", 4, 2, 6, 2, -1, 1),
    Sketcher.Constraint("Equal", 3, 0),
    Sketcher.Constraint("Equal", 6, 5),
    Sketcher.Constraint("DistanceX", 4, 1, 4, 2, Q("95 mm")),
    Sketcher.Constraint("DistanceX", 1, 2, 1, 1, Q("125.2 mm")),
])
sketch12.setExpression("Constraints[20]", "Params.sketch12_width")
sketch12.setExpression("Constraints[21]", "Params.sketch12_width2")
pocket5 = body.newObject("PartDesign::Pocket", "Pocket004")
pocket5.Profile = sketch12
pocket5.setExpression("Length", "Params.pocket5_length")
pocket5.Reversed = True

doc.recompute()
